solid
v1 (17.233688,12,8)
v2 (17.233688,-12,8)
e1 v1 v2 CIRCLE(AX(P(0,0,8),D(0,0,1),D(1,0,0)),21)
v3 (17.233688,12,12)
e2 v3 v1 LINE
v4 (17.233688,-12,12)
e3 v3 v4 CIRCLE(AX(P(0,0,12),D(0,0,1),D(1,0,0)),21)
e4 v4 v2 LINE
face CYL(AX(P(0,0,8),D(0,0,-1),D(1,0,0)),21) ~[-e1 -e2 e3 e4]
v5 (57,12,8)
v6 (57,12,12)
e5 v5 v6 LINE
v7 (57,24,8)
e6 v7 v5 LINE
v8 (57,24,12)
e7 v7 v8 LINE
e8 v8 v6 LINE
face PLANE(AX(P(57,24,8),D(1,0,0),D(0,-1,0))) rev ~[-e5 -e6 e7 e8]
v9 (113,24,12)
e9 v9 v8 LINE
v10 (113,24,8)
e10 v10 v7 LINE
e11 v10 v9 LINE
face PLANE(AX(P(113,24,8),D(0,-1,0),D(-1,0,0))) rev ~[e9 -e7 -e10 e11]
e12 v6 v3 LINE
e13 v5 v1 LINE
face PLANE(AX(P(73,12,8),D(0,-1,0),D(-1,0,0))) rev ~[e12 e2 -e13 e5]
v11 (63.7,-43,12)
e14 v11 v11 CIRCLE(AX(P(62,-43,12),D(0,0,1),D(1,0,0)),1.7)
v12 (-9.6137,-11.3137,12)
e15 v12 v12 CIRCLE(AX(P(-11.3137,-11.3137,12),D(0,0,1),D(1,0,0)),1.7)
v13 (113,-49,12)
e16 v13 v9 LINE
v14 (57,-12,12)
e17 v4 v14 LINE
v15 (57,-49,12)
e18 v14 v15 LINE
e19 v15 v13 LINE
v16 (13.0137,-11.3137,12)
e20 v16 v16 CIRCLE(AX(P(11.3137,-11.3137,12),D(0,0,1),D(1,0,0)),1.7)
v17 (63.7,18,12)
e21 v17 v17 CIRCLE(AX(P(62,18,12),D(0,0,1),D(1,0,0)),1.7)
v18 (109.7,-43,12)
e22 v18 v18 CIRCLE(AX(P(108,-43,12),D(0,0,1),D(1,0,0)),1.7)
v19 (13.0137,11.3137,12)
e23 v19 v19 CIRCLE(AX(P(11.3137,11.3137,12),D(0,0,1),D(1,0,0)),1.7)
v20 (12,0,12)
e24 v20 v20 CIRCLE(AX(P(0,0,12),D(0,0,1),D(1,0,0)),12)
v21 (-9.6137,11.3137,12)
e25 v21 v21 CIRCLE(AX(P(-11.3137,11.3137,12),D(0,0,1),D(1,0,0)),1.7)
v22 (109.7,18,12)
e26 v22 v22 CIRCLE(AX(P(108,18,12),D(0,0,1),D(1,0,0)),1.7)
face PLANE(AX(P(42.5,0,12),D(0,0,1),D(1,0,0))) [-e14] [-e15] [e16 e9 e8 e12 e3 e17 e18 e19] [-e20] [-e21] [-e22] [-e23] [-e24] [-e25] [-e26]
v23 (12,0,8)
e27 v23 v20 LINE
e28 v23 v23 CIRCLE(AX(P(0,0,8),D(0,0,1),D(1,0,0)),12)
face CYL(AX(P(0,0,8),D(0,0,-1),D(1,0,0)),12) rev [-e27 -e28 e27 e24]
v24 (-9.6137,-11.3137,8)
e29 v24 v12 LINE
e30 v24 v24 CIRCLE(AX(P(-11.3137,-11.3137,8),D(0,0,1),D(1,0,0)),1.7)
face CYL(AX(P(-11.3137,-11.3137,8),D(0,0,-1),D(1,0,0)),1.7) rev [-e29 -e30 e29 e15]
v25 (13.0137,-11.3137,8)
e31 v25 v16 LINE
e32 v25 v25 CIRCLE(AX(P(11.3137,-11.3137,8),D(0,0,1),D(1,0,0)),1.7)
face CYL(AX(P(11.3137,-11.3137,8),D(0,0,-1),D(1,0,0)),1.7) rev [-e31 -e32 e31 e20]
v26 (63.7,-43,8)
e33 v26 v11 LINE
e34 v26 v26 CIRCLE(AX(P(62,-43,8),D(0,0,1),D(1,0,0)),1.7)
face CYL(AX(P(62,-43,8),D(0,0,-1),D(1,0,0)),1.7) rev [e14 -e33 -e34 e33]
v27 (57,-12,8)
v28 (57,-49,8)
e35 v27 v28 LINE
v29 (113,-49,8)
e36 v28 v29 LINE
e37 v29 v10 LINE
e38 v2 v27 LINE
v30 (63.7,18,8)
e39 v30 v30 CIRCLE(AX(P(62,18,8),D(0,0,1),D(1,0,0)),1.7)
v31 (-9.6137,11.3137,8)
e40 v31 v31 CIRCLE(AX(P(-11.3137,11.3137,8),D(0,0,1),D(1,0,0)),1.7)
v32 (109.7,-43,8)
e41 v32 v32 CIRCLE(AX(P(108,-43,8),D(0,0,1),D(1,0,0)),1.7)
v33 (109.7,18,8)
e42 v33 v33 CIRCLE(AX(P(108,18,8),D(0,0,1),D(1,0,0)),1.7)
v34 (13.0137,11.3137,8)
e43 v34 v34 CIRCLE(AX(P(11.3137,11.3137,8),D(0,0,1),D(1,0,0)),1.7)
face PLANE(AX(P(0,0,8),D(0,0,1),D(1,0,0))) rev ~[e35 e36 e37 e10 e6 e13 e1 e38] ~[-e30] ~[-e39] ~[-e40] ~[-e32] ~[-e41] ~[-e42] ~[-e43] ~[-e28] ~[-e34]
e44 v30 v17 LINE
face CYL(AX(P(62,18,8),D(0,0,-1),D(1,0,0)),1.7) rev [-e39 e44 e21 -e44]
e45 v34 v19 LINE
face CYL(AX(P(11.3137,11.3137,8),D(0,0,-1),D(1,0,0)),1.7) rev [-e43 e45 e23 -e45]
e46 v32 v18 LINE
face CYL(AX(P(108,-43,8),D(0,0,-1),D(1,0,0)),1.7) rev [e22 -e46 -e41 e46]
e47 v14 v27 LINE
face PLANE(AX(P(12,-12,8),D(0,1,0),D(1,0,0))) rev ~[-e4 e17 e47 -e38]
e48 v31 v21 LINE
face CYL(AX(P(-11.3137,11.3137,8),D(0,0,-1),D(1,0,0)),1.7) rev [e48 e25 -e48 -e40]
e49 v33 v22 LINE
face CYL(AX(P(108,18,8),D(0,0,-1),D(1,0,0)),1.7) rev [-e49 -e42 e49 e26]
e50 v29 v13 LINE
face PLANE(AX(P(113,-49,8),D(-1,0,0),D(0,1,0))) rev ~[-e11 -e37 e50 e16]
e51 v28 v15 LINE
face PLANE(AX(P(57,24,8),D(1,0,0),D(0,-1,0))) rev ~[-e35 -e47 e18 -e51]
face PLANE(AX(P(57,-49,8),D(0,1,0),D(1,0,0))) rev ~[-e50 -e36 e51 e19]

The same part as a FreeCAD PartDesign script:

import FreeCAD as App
import Part
import Sketcher

V = App.Vector
Q = App.Units.Quantity


def add_polygon(sketch, points):
    """Adds a closed chain of lines whose ends are joined by coincident constraints."""
    first, n = sketch.GeometryCount, len(points)
    for a, b in zip(points, points[1:] + points[:1]):
        sketch.addGeometry(Part.LineSegment(App.Vector(*a, 0), App.Vector(*b, 0)), False)
    for i in range(n):
        sketch.addConstraint(Sketcher.Constraint("Coincident", first + i, 2, first + (i + 1) % n, 1))

doc = App.newDocument("Part")
body = doc.addObject("PartDesign::Body", "Body")

sketch1 = body.newObject("Sketcher::SketchObject", "Sketch")
sketch1.AttachmentSupport = (doc.getObject("XY_Plane"), [""])
sketch1.MapMode = "FlatFace"
sketch1.AttachmentOffset = App.Placement(V(0, 0, 8), App.Rotation())
sketch1.addGeometry([
    Part.Circle(V(0, 0, 0), V(0, 0, 1), 21),
    Part.Circle(V(-11.3, -11.3, 0), V(0, 0, 1), 1.7),
    Part.Circle(V(11.3, -11.3, 0), V(0, 0, 1), 1.7),
    Part.Circle(V(-11.3, 11.3, 0), V(0, 0, 1), 1.7),
    Part.Circle(V(0, 0, 0), V(0, 0, 1), 12),
    Part.Circle(V(11.3, 11.3, 0), V(0, 0, 1), 1.7),
], False)
sketch1.addConstraint([
    Sketcher.Constraint("Coincident", 0, 3, -1, 1),
    Sketcher.Constraint("Coincident", 4, 3, -1, 1),
    Sketcher.Constraint("Equal", 1, 2),
    Sketcher.Constraint("Equal", 2, 3),
    Sketcher.Constraint("Equal", 3, 5),
    Sketcher.Constraint("Symmetric", 2, 3, 3, 3, -1, 1),
    Sketcher.Constraint("Symmetric", 1, 3, 5, 3, -1, 1),
    Sketcher.Constraint("Symmetric", 1, 3, 2, 3, -2),
    Sketcher.Constraint("Diameter", 0, Q("42 mm")),
    Sketcher.Constraint("Diameter", 4, Q("24 mm")),
    Sketcher.Constraint("Diameter", 1, Q("3.4 mm")),
    Sketcher.Constraint("DistanceX", 1, 3, -1, 1, Q("11.3137 mm")),
    Sketcher.Constraint("DistanceY", 1, 3, -1, 1, Q("11.3137 mm")),
])
pad1 = body.newObject("PartDesign::Pad", "Pad")
pad1.Profile = sketch1
pad1.Length = 4

sketch2 = body.newObject("Sketcher::SketchObject", "Sketch001")
sketch2.AttachmentSupport = (doc.getObject("XY_Plane"), [""])
sketch2.MapMode = "FlatFace"
sketch2.AttachmentOffset = App.Placement(V(0, 0, 8), App.Rotation())
add_polygon(sketch2, [(12, 12), (12, -12), (73, -12), (73, 12)])
sketch2.addConstraint([
    Sketcher.Constraint("Vertical", 0),
    Sketcher.Constraint("Horizontal", 1),
    Sketcher.Constraint("Vertical", 2),
    Sketcher.Constraint("Horizontal", 3),
    Sketcher.Constraint("DistanceX", 1, 1, 1, 2, Q("61 mm")),
    Sketcher.Constraint("DistanceY", 0, 2, 0, 1, Q("24 mm")),
    Sketcher.Constraint("DistanceX", -1, 1, 0, 2, Q("12 mm")),
    Sketcher.Constraint("DistanceY", 0, 2, -1, 1, Q("12 mm")),
])
pad2 = body.newObject("PartDesign::Pad", "Pad001")
pad2.Profile = sketch2
pad2.Length = 4

sketch3 = body.newObject("Sketcher::SketchObject", "Sketch002")
sketch3.AttachmentSupport = (doc.getObject("XY_Plane"), [""])
sketch3.MapMode = "FlatFace"
sketch3.AttachmentOffset = App.Placement(V(0, 0, 8), App.Rotation())
add_polygon(sketch3, [(57, 24), (57, -49), (113, -49), (113, 24)])
sketch3.addGeometry(Part.Circle(V(62, -43, 0), V(0, 0, 1), 1.7), False)
sketch3.addGeometry(Part.Circle(V(108, -43, 0), V(0, 0, 1), 1.7), False)
sketch3.addGeometry(Part.Circle(V(62, 18, 0), V(0, 0, 1), 1.7), False)
sketch3.addGeometry(Part.Circle(V(108, 18, 0), V(0, 0, 1), 1.7), False)
sketch3.addConstraint([
    Sketcher.Constraint("Vertical", 0),
    Sketcher.Constraint("Horizontal", 1),
    Sketcher.Constraint("Vertical", 2),
    Sketcher.Constraint("Horizontal", 3),
    Sketcher.Constraint("Equal", 4, 5),
    Sketcher.Constraint("Equal", 5, 6),
    Sketcher.Constraint("Equal", 6, 7),
    Sketcher.Constraint("Horizontal", 4, 3, 5, 3),
    Sketcher.Constraint("Horizontal", 6, 3, 7, 3),
    Sketcher.Constraint("Vertical", 4, 3, 6, 3),
    Sketcher.Constraint("Vertical", 5, 3, 7, 3),
    Sketcher.Constraint("Diameter", 4, Q("3.4 mm")),
    Sketcher.Constraint("DistanceX", 1, 1, 1, 2, Q("56 mm")),
    Sketcher.Constraint("DistanceY", 0, 2, 0, 1, Q("73 mm")),
    Sketcher.Constraint("DistanceX", -1, 1, 4, 3, Q("62 mm")),
    Sketcher.Constraint("DistanceY", 4, 3, -1, 1, Q("43 mm")),
    Sketcher.Constraint("DistanceX", -1, 1, 5, 3, Q("108 mm")),
    Sketcher.Constraint("DistanceY", -1, 1, 6, 3, Q("18 mm")),
    Sketcher.Constraint("DistanceX", -1, 1, 0, 2, Q("57 mm")),
    Sketcher.Constraint("DistanceY", 0, 2, -1, 1, Q("49 mm")),
])
pad3 = body.newObject("PartDesign::Pad", "Pad002")
pad3.Profile = sketch3
pad3.Length = 4

sketch4 = body.newObject("Sketcher::SketchObject", "Sketch003")
sketch4.AttachmentSupport = (doc.getObject("XY_Plane"), [""])
sketch4.MapMode = "FlatFace"
sketch4.AttachmentOffset = App.Placement(V(0, 0, 8), App.Rotation())
sketch4.addGeometry([
    Part.Circle(V(11.3, 11.3, 0), V(0, 0, 1), 1.7),
    Part.Circle(V(-11.3, 11.3, 0), V(0, 0, 1), 1.7),
    Part.Circle(V(-11.3, -11.3, 0), V(0, 0, 1), 1.7),
    Part.Circle(V(11.3, -11.3, 0), V(0, 0, 1), 1.7),
    Part.Circle(V(62, -43, 0), V(0, 0, 1), 1.7),
    Part.Circle(V(108, -43, 0), V(0, 0, 1), 1.7),
    Part.Circle(V(62, 18, 0), V(0, 0, 1), 1.7),
    Part.Circle(V(108, 18, 0), V(0, 0, 1), 1.7),
], False)
sketch4.addConstraint([
    Sketcher.Constraint("Equal", 0, 1),
    Sketcher.Constraint("Equal", 1, 2),
    Sketcher.Constraint("Equal", 2, 3),
    Sketcher.Constraint("Equal", 3, 4),
    Sketcher.Constraint("Equal", 4, 5),
    Sketcher.Constraint("Equal", 5, 6),
    Sketcher.Constraint("Equal", 6, 7),
    Sketcher.Constraint("Symmetric", 0, 3, 2, 3, -1, 1),
    Sketcher.Constraint("Symmetric", 1, 3, 3, 3, -1, 1),
    Sketcher.Constraint("Symmetric", 0, 3, 1, 3, -2),
    Sketcher.Constraint("Horizontal", 4, 3, 5, 3),
    Sketcher.Constraint("Horizontal", 6, 3, 7, 3),
    Sketcher.Constraint("Vertical", 4, 3, 6, 3),
    Sketcher.Constraint("Vertical", 5, 3, 7, 3),
    Sketcher.Constraint("Diameter", 0, Q("3.4 mm")),
    Sketcher.Constraint("DistanceX", -1, 1, 4, 3, Q("62 mm")),
    Sketcher.Constraint("DistanceY", 4, 3, -1, 1, Q("43 mm")),
    Sketcher.Constraint("DistanceX", -1, 1, 5, 3, Q("108 mm")),
    Sketcher.Constraint("DistanceY", -1, 1, 6, 3, Q("18 mm")),
    Sketcher.Constraint("DistanceX", -1, 1, 0, 3, Q("11.3137 mm")),
    Sketcher.Constraint("DistanceY", -1, 1, 0, 3, Q("11.3137 mm")),
])
pocket1 = body.newObject("PartDesign::Pocket", "Pocket")
pocket1.Profile = sketch4
pocket1.Length = 4
pocket1.Reversed = True

doc.recompute()
